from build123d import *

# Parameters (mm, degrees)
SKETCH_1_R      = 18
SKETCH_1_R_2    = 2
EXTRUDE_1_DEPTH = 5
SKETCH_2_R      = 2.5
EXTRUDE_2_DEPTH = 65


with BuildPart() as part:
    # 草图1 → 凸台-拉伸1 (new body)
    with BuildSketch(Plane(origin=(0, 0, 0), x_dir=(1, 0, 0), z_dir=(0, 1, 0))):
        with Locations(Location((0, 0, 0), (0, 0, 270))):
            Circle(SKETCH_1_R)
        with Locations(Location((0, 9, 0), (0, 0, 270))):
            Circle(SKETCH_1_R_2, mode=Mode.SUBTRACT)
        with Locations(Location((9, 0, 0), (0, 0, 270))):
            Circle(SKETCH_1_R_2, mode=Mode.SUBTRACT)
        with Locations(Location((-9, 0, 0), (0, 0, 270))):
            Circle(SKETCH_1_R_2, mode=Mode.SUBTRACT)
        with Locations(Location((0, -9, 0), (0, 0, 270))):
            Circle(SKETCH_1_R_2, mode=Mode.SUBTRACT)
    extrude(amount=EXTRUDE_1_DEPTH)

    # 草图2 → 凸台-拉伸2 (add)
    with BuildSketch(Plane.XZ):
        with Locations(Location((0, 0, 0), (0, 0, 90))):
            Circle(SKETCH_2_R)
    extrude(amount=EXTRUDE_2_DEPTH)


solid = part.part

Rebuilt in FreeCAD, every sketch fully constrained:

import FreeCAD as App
import Part
import Sketcher

V = App.Vector

doc = App.newDocument("Part")
body = doc.addObject("PartDesign::Body", "Body")

# Sketch on XZ plane
sketch1 = body.newObject("Sketcher::SketchObject", "Sketch")
sketch1.AttachmentSupport = (doc.getObject("XZ_Plane"), [""])
sketch1.MapMode = "FlatFace"
sketch1.addGeometry([
    Part.Circle(V(0, 0, 0), V(0, 0, 1), 18),  # 0
    Part.Circle(V(0, -9, 0), V(0, 0, 1), 2),  # 1
    Part.Circle(V(-9, 0, 0), V(0, 0, 1), 2),  # 2
    Part.Circle(V(9, 0, 0), V(0, 0, 1), 2),  # 3
    Part.Circle(V(0, 9, 0), V(0, 0, 1), 2),  # 4
], False)
sketch1.addConstraint([
    Sketcher.Constraint("Coincident", 0, 3, -1, 1),
    Sketcher.Constraint("Equal", 1, 2),
    Sketcher.Constraint("Equal", 2, 3),
    Sketcher.Constraint("Equal", 3, 4),
    Sketcher.Constraint("Symmetric", 2, 3, 3, 3, -1, 1),
    Sketcher.Constraint("Symmetric", 1, 3, 4, 3, -1, 1),
    Sketcher.Constraint("PointOnObject", 1, 3, -2),
    Sketcher.Constraint("PointOnObject", 2, 3, -1),
    Sketcher.Constraint("Diameter", 0, 36.0),
    Sketcher.Constraint("Diameter", 1, 4.0),
    Sketcher.Constraint("DistanceY", 1, 3, -1, 1, 9.0),
    Sketcher.Constraint("DistanceX", 2, 3, -1, 1, 9.0),
])
pad1 = body.newObject("PartDesign::Pad", "Pad")
pad1.Profile = sketch1
pad1.Length = 5
pad1.Reversed = True

# Sketch on XZ plane
sketch2 = body.newObject("Sketcher::SketchObject", "Sketch001")
sketch2.AttachmentSupport = (doc.getObject("XZ_Plane"), [""])
sketch2.MapMode = "FlatFace"
sketch2.addGeometry(Part.Circle(V(0, 0, 0), V(0, 0, 1), 2.5), False)
sketch2.addConstraint([
    Sketcher.Constraint("Coincident", 0, 3, -1, 1),
    Sketcher.Constraint("Diameter", 0, 5.0),
])
pad2 = body.newObject("PartDesign::Pad", "Pad001")
pad2.Profile = sketch2
pad2.Length = 65

doc.recompute()
